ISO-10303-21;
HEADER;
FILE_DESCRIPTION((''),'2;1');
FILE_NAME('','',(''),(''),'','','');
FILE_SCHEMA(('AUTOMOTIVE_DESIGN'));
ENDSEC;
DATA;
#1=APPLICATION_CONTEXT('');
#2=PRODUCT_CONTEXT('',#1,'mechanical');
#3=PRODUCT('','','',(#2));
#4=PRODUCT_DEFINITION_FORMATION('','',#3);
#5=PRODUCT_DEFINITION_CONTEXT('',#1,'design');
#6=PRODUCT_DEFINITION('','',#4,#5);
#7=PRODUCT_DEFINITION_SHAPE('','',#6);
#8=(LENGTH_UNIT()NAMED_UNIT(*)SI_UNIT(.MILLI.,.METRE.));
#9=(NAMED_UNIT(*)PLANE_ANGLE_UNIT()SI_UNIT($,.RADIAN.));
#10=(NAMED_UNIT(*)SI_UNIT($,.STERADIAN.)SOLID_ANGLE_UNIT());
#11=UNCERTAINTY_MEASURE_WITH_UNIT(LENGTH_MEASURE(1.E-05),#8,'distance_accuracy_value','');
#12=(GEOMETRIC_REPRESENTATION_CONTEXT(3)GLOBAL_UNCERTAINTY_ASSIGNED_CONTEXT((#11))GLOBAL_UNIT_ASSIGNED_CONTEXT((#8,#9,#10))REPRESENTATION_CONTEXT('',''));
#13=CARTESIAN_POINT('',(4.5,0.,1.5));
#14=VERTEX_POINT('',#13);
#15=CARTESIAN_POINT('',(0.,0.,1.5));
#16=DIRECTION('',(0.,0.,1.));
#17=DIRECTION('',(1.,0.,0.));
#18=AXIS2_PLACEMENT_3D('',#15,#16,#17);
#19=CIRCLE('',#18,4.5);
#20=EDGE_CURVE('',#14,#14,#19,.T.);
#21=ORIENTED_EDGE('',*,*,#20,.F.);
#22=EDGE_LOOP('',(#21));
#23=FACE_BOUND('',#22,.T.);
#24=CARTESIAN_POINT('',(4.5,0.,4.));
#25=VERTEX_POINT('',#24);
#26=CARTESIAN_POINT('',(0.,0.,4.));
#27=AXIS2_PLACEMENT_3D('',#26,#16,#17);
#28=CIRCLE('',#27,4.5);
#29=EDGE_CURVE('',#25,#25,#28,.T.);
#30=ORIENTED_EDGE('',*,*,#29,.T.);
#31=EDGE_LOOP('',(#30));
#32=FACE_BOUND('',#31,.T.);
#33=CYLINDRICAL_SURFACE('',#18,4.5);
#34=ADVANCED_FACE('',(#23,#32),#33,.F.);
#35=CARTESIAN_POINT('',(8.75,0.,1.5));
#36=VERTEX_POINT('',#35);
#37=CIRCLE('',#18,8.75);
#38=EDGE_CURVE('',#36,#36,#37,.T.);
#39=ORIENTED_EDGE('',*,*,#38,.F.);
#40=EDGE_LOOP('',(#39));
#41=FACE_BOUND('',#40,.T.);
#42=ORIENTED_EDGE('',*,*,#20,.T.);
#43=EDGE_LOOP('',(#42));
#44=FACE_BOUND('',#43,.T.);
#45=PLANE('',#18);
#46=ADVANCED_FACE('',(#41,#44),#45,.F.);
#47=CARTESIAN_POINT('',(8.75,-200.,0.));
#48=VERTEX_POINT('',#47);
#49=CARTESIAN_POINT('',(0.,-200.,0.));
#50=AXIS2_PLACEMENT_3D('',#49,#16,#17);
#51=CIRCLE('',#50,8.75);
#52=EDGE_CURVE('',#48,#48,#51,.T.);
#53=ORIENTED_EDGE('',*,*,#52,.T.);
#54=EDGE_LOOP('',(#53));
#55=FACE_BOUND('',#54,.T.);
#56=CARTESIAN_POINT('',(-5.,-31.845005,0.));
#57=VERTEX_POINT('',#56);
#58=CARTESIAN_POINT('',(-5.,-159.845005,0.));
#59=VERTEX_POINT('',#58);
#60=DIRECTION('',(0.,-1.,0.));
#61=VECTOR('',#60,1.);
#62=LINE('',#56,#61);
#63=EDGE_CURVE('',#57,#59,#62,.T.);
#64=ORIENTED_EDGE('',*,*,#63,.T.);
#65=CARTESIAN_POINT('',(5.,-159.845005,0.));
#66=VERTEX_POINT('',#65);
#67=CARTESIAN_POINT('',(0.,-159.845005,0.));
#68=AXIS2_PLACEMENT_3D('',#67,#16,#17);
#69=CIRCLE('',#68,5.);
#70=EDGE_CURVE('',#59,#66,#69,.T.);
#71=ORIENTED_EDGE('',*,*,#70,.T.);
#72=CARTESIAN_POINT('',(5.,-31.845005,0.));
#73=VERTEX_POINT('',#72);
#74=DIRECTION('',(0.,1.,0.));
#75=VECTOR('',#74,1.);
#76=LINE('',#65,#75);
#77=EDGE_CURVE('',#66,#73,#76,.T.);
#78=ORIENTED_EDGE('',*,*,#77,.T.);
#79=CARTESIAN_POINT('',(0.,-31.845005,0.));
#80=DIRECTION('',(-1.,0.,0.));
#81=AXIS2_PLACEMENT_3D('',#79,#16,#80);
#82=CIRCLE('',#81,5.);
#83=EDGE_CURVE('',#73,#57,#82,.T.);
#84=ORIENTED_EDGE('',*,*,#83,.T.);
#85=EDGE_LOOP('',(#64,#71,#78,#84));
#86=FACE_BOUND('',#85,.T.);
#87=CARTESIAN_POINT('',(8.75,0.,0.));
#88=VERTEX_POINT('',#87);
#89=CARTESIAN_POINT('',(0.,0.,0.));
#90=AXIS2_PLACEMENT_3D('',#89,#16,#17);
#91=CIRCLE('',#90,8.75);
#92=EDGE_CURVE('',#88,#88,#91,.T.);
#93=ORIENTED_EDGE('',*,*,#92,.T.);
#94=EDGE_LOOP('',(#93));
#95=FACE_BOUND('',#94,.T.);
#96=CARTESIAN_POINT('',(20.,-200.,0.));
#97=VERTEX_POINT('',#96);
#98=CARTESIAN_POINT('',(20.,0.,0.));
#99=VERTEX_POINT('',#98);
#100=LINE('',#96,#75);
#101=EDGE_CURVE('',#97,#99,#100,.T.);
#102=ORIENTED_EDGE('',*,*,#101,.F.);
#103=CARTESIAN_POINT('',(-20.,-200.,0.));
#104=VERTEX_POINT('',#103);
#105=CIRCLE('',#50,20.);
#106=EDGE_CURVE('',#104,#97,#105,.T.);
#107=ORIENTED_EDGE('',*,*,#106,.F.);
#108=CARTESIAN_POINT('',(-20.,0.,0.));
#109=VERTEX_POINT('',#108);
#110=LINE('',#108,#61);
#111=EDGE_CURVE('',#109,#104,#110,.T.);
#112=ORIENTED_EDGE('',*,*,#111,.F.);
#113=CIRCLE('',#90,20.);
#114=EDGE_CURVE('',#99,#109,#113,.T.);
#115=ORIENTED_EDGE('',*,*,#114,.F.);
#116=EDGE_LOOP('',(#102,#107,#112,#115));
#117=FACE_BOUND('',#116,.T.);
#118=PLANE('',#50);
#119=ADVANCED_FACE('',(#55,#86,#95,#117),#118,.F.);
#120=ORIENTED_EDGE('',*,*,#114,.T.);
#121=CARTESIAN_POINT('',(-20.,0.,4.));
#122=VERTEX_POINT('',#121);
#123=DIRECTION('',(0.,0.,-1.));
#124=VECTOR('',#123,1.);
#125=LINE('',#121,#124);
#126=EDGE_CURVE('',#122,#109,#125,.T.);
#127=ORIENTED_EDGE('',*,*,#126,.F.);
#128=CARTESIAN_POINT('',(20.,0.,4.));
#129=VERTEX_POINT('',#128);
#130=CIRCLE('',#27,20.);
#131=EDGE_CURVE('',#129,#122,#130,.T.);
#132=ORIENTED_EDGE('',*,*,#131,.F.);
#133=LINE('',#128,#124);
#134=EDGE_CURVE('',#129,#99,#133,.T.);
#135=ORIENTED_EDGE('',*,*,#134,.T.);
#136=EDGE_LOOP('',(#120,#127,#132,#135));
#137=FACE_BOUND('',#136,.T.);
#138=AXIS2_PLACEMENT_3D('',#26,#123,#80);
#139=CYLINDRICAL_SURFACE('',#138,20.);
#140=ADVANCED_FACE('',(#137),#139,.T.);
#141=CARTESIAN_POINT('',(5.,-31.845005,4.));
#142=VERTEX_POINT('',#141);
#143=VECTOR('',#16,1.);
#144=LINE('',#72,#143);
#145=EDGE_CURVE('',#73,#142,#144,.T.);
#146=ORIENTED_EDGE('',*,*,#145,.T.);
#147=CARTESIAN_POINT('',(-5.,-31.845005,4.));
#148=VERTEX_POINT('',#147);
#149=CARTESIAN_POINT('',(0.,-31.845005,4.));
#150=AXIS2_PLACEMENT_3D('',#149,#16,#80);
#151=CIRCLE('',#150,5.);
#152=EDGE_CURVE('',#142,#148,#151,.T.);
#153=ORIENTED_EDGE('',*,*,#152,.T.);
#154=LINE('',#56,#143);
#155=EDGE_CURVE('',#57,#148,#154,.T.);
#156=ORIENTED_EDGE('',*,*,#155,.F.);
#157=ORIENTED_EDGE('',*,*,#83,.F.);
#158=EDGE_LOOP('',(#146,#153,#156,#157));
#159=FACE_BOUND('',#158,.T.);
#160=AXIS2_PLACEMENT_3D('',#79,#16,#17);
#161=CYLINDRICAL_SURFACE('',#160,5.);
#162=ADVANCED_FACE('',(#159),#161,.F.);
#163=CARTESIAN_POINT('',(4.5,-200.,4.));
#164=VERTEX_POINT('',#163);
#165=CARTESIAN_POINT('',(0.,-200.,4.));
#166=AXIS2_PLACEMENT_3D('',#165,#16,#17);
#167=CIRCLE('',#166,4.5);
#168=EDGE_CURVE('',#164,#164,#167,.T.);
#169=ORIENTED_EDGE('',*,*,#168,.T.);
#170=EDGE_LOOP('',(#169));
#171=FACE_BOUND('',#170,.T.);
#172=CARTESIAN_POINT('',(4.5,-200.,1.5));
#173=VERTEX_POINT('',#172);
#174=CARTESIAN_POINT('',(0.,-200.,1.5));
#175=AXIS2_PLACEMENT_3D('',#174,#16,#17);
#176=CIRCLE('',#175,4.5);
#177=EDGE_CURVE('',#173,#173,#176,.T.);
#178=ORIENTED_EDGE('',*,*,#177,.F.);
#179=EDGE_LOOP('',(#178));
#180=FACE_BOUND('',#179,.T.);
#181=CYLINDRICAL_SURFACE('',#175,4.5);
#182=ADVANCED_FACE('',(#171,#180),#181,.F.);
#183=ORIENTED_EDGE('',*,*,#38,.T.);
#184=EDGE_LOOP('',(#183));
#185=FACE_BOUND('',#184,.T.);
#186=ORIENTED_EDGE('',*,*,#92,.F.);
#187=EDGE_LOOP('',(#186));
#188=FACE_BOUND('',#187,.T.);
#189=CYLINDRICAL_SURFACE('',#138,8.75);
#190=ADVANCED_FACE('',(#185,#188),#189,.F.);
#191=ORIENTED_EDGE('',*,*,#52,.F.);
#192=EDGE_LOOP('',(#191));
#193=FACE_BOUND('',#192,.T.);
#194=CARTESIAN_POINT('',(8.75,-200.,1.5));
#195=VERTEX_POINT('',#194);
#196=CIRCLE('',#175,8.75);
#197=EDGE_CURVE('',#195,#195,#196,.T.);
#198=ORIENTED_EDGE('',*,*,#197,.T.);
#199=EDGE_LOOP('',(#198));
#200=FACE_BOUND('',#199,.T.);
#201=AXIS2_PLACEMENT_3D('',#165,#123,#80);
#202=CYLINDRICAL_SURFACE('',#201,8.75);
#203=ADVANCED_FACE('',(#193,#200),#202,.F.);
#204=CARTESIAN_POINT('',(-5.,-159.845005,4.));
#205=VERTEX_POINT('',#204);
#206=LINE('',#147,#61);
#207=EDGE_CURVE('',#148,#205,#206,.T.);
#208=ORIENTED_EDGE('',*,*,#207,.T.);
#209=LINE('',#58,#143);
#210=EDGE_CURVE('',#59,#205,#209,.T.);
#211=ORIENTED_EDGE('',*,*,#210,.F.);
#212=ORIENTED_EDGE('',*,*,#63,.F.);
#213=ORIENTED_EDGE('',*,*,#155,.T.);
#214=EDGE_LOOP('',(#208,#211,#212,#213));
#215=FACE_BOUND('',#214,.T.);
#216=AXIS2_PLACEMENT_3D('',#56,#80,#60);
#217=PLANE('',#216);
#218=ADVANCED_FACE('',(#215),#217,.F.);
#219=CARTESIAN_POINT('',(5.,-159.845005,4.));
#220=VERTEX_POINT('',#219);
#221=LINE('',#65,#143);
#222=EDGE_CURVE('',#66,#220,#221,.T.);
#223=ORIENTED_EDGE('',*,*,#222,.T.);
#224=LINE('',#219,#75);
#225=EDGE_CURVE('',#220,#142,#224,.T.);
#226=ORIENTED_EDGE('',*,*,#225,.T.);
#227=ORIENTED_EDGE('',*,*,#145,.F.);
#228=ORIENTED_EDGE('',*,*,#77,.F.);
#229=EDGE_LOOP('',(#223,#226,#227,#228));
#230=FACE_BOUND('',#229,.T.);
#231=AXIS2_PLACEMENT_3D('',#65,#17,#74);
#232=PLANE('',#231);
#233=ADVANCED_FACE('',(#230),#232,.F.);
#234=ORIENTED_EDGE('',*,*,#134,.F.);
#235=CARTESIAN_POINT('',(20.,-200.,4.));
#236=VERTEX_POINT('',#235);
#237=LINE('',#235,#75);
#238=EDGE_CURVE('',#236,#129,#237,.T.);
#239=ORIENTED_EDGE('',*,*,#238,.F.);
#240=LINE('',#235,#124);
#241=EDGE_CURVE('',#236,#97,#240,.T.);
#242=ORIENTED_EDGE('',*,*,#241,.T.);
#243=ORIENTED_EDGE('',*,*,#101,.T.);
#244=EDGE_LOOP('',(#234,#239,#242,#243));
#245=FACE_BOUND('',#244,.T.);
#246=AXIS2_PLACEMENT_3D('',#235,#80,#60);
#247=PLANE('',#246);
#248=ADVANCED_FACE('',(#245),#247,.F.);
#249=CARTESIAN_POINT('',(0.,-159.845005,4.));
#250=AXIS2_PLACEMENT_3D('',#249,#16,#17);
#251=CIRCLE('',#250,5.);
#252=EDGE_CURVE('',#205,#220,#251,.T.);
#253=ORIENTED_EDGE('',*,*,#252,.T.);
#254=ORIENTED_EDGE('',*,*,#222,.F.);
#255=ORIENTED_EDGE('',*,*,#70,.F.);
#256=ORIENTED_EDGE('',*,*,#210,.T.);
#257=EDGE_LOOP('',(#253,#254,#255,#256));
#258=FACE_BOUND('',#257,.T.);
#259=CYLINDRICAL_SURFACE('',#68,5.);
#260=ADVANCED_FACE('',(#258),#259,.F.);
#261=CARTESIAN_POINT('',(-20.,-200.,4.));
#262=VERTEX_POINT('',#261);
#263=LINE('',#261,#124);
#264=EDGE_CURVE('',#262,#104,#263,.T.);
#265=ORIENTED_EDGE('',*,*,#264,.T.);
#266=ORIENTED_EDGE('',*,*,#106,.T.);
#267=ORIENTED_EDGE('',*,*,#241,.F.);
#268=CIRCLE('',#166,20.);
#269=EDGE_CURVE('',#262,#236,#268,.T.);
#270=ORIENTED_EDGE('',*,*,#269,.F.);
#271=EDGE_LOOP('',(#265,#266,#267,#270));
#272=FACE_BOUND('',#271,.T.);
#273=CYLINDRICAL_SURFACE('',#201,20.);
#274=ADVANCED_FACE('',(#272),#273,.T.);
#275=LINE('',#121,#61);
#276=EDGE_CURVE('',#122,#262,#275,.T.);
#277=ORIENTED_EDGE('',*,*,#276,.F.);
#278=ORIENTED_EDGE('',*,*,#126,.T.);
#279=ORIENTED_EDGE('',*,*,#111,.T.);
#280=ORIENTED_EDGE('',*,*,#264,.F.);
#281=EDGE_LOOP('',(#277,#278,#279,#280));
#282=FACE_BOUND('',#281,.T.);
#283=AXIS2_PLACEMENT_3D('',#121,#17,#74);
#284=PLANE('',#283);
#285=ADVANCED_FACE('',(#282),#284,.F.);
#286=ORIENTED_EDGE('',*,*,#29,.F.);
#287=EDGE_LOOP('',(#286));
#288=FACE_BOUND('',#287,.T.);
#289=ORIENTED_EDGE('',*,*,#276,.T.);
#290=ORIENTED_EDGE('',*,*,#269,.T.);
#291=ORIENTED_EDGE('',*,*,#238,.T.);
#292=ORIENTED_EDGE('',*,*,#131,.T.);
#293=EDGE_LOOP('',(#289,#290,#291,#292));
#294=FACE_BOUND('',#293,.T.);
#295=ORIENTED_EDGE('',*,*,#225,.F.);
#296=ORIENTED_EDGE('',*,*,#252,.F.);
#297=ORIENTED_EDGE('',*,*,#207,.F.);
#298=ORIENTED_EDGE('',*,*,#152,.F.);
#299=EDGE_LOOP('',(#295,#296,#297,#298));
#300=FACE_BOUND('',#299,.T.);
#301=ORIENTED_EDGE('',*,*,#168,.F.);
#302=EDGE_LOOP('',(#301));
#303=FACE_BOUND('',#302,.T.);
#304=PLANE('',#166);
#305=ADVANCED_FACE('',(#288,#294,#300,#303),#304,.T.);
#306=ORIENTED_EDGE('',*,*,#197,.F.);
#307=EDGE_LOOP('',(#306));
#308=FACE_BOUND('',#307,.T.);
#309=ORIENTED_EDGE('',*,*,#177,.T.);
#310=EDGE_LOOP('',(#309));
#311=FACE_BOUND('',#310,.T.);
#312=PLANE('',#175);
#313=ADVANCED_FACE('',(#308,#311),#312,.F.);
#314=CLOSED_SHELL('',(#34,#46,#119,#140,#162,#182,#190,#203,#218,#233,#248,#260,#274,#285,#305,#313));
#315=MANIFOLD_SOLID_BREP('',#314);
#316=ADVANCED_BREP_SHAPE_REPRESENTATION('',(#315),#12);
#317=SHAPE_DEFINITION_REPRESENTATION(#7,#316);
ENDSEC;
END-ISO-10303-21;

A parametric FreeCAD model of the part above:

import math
import FreeCAD as App
import Part
import Sketcher
from FreeCAD import Vector
Q = App.Units.Quantity

doc = App.newDocument("Part")
body = doc.addObject("PartDesign::Body", "Body")

sketch1 = doc.addObject("Sketcher::SketchObject", "Sketch")
body.addObject(sketch1)
sketch1.AttachmentSupport = (doc.XY_Plane, [""])
sketch1.MapMode = "FlatFace"
sketch1.addGeometry([
    Part.LineSegment(Vector(-20, 0, 0), Vector(-20, -200, 0)),
    Part.ArcOfCircle(Part.Circle(Vector(0, -200, 0), Vector(0, 0, 1), 20), math.radians(180), math.radians(360)),
    Part.LineSegment(Vector(20, -200, 0), Vector(20, 0, 0)),
    Part.ArcOfCircle(Part.Circle(Vector(0, 0, 0), Vector(0, 0, 1), 20), math.radians(0), math.radians(180)),
    Part.Circle(Vector(0, -200, 0), Vector(0, 0, 1), 9),
    Part.Circle(Vector(0, 0, 0), Vector(0, 0, 1), 9),
], False)
sketch1.addConstraint([
    Sketcher.Constraint("Tangent", 0, 2, 1, 1),
    Sketcher.Constraint("Tangent", 1, 2, 2, 1),
    Sketcher.Constraint("Tangent", 2, 2, 3, 1),
    Sketcher.Constraint("Tangent", 3, 2, 0, 1),
    Sketcher.Constraint("Vertical", 0),
    Sketcher.Constraint("Vertical", 2),
    Sketcher.Constraint("Coincident", 3, 3, -1, 1),
    Sketcher.Constraint("Coincident", 5, 3, -1, 1),
    Sketcher.Constraint("Coincident", 4, 3, 1, 3),
    Sketcher.Constraint("Equal", 4, 5),
    Sketcher.Constraint("Radius", 1, Q("20 mm")),
    Sketcher.Constraint("Diameter", 4, Q("17.5 mm")),
    Sketcher.Constraint("DistanceY", 0, 2, 0, 1, Q("200 mm")),
])
pad1 = doc.addObject("PartDesign::Pad", "Pad")
body.addObject(pad1)
pad1.Profile = sketch1
pad1.Length = 4

sketch2 = doc.addObject("Sketcher::SketchObject", "Sketch001")
body.addObject(sketch2)
sketch2.AttachmentSupport = (doc.XY_Plane, [""])
sketch2.MapMode = "FlatFace"
sketch2.AttachmentOffset = App.Placement(Vector(0, 0, 1.5), App.Rotation())
sketch2.addGeometry([
    Part.Circle(Vector(0, 0, 0), Vector(0, 0, 1), 8.8),
    Part.Circle(Vector(0, 0, 0), Vector(0, 0, 1), 4.5),
    Part.Circle(Vector(0, -200, 0), Vector(0, 0, 1), 8.8),
    Part.Circle(Vector(0, -200, 0), Vector(0, 0, 1), 4.5),
], False)
sketch2.addConstraint([
    Sketcher.Constraint("Coincident", 0, 3, -1, 1),
    Sketcher.Constraint("Coincident", 1, 3, -1, 1),
    Sketcher.Constraint("Coincident", 3, 3, 2, 3),
    Sketcher.Constraint("Equal", 0, 2),
    Sketcher.Constraint("Equal", 1, 3),
    Sketcher.Constraint("PointOnObject", 2, 3, -2),
    Sketcher.Constraint("Diameter", 1, Q("9 mm")),
    Sketcher.Constraint("Diameter", 0, Q("17.5 mm")),
    Sketcher.Constraint("DistanceY", 2, 3, -1, 1, Q("200 mm")),
])
pad2 = doc.addObject("PartDesign::Pad", "Pad001")
body.addObject(pad2)
pad2.Profile = sketch2
pad2.Length = 2.5

sketch3 = doc.addObject("Sketcher::SketchObject", "Sketch002")
body.addObject(sketch3)
sketch3.AttachmentSupport = (doc.XY_Plane, [""])
sketch3.MapMode = "FlatFace"
sketch3.AttachmentOffset = App.Placement(Vector(0, 0, 4), App.Rotation())
sketch3.addGeometry([
    Part.LineSegment(Vector(-5, -32, 0), Vector(-5, -160, 0)),
    Part.ArcOfCircle(Part.Circle(Vector(0, -160, 0), Vector(0, 0, 1), 5), math.radians(180), math.radians(360)),
    Part.LineSegment(Vector(5, -160, 0), Vector(5, -32, 0)),
    Part.ArcOfCircle(Part.Circle(Vector(0, -32, 0), Vector(0, 0, 1), 5), math.radians(0), math.radians(180)),
], False)
sketch3.addConstraint([
    Sketcher.Constraint("Tangent", 0, 2, 1, 1),
    Sketcher.Constraint("Tangent", 1, 2, 2, 1),
    Sketcher.Constraint("Tangent", 2, 2, 3, 1),
    Sketcher.Constraint("Tangent", 3, 2, 0, 1),
    Sketcher.Constraint("Vertical", 0),
    Sketcher.Constraint("Vertical", 2),
    Sketcher.Constraint("PointOnObject", 1, 3, -2),
    Sketcher.Constraint("Radius", 1, Q("5 mm")),
    Sketcher.Constraint("DistanceY", 0, 2, 0, 1, Q("128 mm")),
    Sketcher.Constraint("DistanceY", 1, 3, -1, 1, Q("159.845005 mm")),
])
pocket1 = doc.addObject("PartDesign::Pocket", "Pocket")
body.addObject(pocket1)
pocket1.Profile = sketch3
pocket1.Type = "ThroughAll"

doc.recompute()
